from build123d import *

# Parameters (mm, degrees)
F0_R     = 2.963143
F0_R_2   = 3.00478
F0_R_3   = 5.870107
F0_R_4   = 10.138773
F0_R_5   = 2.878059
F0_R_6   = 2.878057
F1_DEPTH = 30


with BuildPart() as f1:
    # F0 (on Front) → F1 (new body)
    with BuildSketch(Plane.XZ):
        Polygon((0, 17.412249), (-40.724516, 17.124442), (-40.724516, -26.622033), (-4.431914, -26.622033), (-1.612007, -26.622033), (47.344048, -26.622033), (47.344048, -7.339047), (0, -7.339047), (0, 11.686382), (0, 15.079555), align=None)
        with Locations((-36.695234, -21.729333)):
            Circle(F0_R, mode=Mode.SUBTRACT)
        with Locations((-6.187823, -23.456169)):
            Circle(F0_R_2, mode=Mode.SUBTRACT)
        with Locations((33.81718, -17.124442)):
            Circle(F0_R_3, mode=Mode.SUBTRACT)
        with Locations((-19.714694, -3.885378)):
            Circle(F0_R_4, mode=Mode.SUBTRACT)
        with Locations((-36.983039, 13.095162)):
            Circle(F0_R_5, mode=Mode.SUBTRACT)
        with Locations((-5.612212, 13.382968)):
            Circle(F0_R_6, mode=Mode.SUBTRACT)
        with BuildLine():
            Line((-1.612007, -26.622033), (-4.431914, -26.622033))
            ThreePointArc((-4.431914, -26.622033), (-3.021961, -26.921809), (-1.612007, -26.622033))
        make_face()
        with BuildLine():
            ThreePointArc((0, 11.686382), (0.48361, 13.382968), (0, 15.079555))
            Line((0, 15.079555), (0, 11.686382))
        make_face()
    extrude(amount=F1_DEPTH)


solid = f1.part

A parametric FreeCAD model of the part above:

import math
import FreeCAD as App
import Part
import Sketcher

V = App.Vector
Q = App.Units.Quantity

doc = App.newDocument("Part")
body = doc.addObject("PartDesign::Body", "Body")

sketch1 = body.newObject("Sketcher::SketchObject", "Sketch")
sketch1.AttachmentSupport = (doc.getObject("XZ_Plane"), [""])
sketch1.MapMode = "FlatFace"
sketch1.addGeometry(Part.LineSegment(V(0, 17.4, 0), V(-40.7, 17.1, 0)), False)
sketch1.addGeometry(Part.LineSegment(V(-40.7, 17.1, 0), V(-40.7, -26.6, 0)), False)
sketch1.addGeometry(Part.LineSegment(V(-40.7, -26.6, 0), V(-4.4, -26.6, 0)), False)
sketch1.addGeometry(Part.ArcOfCircle(Part.Circle(V(-3, -23.5, 0), V(0, 0, 1), 3.5), math.radians(-114), math.radians(-66)), False)
sketch1.addGeometry(Part.LineSegment(V(-1.6, -26.6, 0), V(47.3, -26.6, 0)), False)
sketch1.addGeometry(Part.LineSegment(V(47.3, -26.6, 0), V(47.3, -7.3, 0)), False)
sketch1.addGeometry(Part.LineSegment(V(47.3, -7.3, 0), V(0, -7.3, 0)), False)
sketch1.addGeometry(Part.LineSegment(V(0, -7.3, 0), V(0, 11.7, 0)), False)
sketch1.addGeometry(Part.ArcOfCircle(Part.Circle(V(-2.7, 13.4, 0), V(0, 0, 1), 3.2), math.radians(-32), math.radians(32)), False)
sketch1.addGeometry(Part.LineSegment(V(0, 15.1, 0), V(0, 17.4, 0)), False)
sketch1.addGeometry(Part.Circle(V(-36.7, -21.7, 0), V(0, 0, 1), 3), False)
sketch1.addGeometry(Part.Circle(V(-6.2, -23.5, 0), V(0, 0, 1), 3), False)
sketch1.addGeometry(Part.Circle(V(33.8, -17.1, 0), V(0, 0, 1), 5.9), False)
sketch1.addGeometry(Part.Circle(V(-19.7, -3.9, 0), V(0, 0, 1), 10.1), False)
sketch1.addGeometry(Part.Circle(V(-37, 13.1, 0), V(0, 0, 1), 2.9), False)
sketch1.addGeometry(Part.Circle(V(-5.6, 13.4, 0), V(0, 0, 1), 2.9), False)
sketch1.addConstraint(Sketcher.Constraint("Coincident", 0, 2, 1, 1))
sketch1.addConstraint(Sketcher.Constraint("Coincident", 1, 2, 2, 1))
sketch1.addConstraint(Sketcher.Constraint("Coincident", 2, 2, 3, 1))
sketch1.addConstraint(Sketcher.Constraint("Coincident", 3, 2, 4, 1))
sketch1.addConstraint(Sketcher.Constraint("Coincident", 4, 2, 5, 1))
sketch1.addConstraint(Sketcher.Constraint("Coincident", 5, 2, 6, 1))
sketch1.addConstraint(Sketcher.Constraint("Coincident", 6, 2, 7, 1))
sketch1.addConstraint(Sketcher.Constraint("Coincident", 7, 2, 8, 1))
sketch1.addConstraint(Sketcher.Constraint("Coincident", 8, 2, 9, 1))
sketch1.addConstraint(Sketcher.Constraint("Coincident", 9, 2, 0, 1))
sketch1.addConstraint(Sketcher.Constraint("Vertical", 1))
sketch1.addConstraint(Sketcher.Constraint("Horizontal", 2))
sketch1.addConstraint(Sketcher.Constraint("Horizontal", 4))
sketch1.addConstraint(Sketcher.Constraint("Vertical", 5))
sketch1.addConstraint(Sketcher.Constraint("Horizontal", 6))
sketch1.addConstraint(Sketcher.Constraint("Vertical", 7))
sketch1.addConstraint(Sketcher.Constraint("Vertical", 9))
sketch1.addConstraint(Sketcher.Constraint("Equal", 14, 15))
sketch1.addConstraint(Sketcher.Constraint("PointOnObject", 6, 2, -2))
sketch1.addConstraint(Sketcher.Constraint("PointOnObject", 8, 2, -2))
sketch1.addConstraint(Sketcher.Constraint("Horizontal", 8, 3, 15, 3))
sketch1.addConstraint(Sketcher.Constraint("Horizontal", 2, 2, 3, 2))
sketch1.addConstraint(Sketcher.Constraint("Diameter", 11, Q("6.00956 mm")))
sketch1.addConstraint(Sketcher.Constraint("Diameter", 10, Q("5.926286 mm")))
sketch1.addConstraint(Sketcher.Constraint("Diameter", 12, Q("11.740214 mm")))
sketch1.addConstraint(Sketcher.Constraint("Diameter", 13, Q("20.277546 mm")))
sketch1.addConstraint(Sketcher.Constraint("Diameter", 14, Q("5.756118 mm")))
sketch1.addConstraint(Sketcher.Constraint("Radius", 3, Q("3.465645 mm")))
sketch1.addConstraint(Sketcher.Constraint("Radius", 8, Q("3.217763 mm")))
sketch1.addConstraint(Sketcher.Constraint("DistanceY", 7, 1, 7, 2, Q("19.025429 mm")))
sketch1.addConstraint(Sketcher.Constraint("DistanceY", 10, 3, 8, 3, Q("35.112302 mm")))
sketch1.addConstraint(Sketcher.Constraint("DistanceY", 1, 2, 10, 3, Q("4.8927 mm")))
sketch1.addConstraint(Sketcher.Constraint("DistanceX", 8, 3, 5, 2, Q("50.078201 mm")))
sketch1.addConstraint(Sketcher.Constraint("DistanceX", 2, 1, 2, 2, Q("36.292602 mm")))
sketch1.addConstraint(Sketcher.Constraint("DistanceX", 4, 1, 4, 2, Q("48.956055 mm")))
sketch1.addConstraint(Sketcher.Constraint("DistanceX", 6, 2, 6, 1, Q("47.344048 mm")))
sketch1.addConstraint(Sketcher.Constraint("DistanceY", 1, 2, 1, 1, Q("43.746475 mm")))
sketch1.addConstraint(Sketcher.Constraint("DistanceY", 9, 1, 9, 2, Q("2.332694 mm")))
sketch1.addConstraint(Sketcher.Constraint("DistanceX", 3, 3, -1, 1, Q("3.021961 mm")))
sketch1.addConstraint(Sketcher.Constraint("DistanceY", -1, 1, 8, 3, Q("13.382969 mm")))
sketch1.addConstraint(Sketcher.Constraint("DistanceY", 11, 3, -1, 1, Q("23.456169 mm")))
sketch1.addConstraint(Sketcher.Constraint("DistanceX", -1, 1, 12, 3, Q("33.81718 mm")))
sketch1.addConstraint(Sketcher.Constraint("DistanceY", 12, 3, -1, 1, Q("17.124442 mm")))
sketch1.addConstraint(Sketcher.Constraint("DistanceY", 13, 3, -1, 1, Q("3.885378 mm")))
sketch1.addConstraint(Sketcher.Constraint("DistanceX", 14, 3, -1, 1, Q("36.983039 mm")))
sketch1.addConstraint(Sketcher.Constraint("DistanceX", 10, 3, 8, 3, Q("33.961081 mm")))
sketch1.addConstraint(Sketcher.Constraint("DistanceX", 10, 3, 11, 3, Q("30.507411 mm")))
sketch1.addConstraint(Sketcher.Constraint("DistanceX", 13, 3, 11, 3, Q("13.526871 mm")))
sketch1.addConstraint(Sketcher.Constraint("DistanceY", 13, 3, 14, 3, Q("16.98054 mm")))
sketch1.addConstraint(Sketcher.Constraint("DistanceX", 15, 3, 8, 3, Q("2.878059 mm")))
pad1 = body.newObject("PartDesign::Pad", "Pad")
pad1.Profile = sketch1
pad1.Length = 30

doc.recompute()
